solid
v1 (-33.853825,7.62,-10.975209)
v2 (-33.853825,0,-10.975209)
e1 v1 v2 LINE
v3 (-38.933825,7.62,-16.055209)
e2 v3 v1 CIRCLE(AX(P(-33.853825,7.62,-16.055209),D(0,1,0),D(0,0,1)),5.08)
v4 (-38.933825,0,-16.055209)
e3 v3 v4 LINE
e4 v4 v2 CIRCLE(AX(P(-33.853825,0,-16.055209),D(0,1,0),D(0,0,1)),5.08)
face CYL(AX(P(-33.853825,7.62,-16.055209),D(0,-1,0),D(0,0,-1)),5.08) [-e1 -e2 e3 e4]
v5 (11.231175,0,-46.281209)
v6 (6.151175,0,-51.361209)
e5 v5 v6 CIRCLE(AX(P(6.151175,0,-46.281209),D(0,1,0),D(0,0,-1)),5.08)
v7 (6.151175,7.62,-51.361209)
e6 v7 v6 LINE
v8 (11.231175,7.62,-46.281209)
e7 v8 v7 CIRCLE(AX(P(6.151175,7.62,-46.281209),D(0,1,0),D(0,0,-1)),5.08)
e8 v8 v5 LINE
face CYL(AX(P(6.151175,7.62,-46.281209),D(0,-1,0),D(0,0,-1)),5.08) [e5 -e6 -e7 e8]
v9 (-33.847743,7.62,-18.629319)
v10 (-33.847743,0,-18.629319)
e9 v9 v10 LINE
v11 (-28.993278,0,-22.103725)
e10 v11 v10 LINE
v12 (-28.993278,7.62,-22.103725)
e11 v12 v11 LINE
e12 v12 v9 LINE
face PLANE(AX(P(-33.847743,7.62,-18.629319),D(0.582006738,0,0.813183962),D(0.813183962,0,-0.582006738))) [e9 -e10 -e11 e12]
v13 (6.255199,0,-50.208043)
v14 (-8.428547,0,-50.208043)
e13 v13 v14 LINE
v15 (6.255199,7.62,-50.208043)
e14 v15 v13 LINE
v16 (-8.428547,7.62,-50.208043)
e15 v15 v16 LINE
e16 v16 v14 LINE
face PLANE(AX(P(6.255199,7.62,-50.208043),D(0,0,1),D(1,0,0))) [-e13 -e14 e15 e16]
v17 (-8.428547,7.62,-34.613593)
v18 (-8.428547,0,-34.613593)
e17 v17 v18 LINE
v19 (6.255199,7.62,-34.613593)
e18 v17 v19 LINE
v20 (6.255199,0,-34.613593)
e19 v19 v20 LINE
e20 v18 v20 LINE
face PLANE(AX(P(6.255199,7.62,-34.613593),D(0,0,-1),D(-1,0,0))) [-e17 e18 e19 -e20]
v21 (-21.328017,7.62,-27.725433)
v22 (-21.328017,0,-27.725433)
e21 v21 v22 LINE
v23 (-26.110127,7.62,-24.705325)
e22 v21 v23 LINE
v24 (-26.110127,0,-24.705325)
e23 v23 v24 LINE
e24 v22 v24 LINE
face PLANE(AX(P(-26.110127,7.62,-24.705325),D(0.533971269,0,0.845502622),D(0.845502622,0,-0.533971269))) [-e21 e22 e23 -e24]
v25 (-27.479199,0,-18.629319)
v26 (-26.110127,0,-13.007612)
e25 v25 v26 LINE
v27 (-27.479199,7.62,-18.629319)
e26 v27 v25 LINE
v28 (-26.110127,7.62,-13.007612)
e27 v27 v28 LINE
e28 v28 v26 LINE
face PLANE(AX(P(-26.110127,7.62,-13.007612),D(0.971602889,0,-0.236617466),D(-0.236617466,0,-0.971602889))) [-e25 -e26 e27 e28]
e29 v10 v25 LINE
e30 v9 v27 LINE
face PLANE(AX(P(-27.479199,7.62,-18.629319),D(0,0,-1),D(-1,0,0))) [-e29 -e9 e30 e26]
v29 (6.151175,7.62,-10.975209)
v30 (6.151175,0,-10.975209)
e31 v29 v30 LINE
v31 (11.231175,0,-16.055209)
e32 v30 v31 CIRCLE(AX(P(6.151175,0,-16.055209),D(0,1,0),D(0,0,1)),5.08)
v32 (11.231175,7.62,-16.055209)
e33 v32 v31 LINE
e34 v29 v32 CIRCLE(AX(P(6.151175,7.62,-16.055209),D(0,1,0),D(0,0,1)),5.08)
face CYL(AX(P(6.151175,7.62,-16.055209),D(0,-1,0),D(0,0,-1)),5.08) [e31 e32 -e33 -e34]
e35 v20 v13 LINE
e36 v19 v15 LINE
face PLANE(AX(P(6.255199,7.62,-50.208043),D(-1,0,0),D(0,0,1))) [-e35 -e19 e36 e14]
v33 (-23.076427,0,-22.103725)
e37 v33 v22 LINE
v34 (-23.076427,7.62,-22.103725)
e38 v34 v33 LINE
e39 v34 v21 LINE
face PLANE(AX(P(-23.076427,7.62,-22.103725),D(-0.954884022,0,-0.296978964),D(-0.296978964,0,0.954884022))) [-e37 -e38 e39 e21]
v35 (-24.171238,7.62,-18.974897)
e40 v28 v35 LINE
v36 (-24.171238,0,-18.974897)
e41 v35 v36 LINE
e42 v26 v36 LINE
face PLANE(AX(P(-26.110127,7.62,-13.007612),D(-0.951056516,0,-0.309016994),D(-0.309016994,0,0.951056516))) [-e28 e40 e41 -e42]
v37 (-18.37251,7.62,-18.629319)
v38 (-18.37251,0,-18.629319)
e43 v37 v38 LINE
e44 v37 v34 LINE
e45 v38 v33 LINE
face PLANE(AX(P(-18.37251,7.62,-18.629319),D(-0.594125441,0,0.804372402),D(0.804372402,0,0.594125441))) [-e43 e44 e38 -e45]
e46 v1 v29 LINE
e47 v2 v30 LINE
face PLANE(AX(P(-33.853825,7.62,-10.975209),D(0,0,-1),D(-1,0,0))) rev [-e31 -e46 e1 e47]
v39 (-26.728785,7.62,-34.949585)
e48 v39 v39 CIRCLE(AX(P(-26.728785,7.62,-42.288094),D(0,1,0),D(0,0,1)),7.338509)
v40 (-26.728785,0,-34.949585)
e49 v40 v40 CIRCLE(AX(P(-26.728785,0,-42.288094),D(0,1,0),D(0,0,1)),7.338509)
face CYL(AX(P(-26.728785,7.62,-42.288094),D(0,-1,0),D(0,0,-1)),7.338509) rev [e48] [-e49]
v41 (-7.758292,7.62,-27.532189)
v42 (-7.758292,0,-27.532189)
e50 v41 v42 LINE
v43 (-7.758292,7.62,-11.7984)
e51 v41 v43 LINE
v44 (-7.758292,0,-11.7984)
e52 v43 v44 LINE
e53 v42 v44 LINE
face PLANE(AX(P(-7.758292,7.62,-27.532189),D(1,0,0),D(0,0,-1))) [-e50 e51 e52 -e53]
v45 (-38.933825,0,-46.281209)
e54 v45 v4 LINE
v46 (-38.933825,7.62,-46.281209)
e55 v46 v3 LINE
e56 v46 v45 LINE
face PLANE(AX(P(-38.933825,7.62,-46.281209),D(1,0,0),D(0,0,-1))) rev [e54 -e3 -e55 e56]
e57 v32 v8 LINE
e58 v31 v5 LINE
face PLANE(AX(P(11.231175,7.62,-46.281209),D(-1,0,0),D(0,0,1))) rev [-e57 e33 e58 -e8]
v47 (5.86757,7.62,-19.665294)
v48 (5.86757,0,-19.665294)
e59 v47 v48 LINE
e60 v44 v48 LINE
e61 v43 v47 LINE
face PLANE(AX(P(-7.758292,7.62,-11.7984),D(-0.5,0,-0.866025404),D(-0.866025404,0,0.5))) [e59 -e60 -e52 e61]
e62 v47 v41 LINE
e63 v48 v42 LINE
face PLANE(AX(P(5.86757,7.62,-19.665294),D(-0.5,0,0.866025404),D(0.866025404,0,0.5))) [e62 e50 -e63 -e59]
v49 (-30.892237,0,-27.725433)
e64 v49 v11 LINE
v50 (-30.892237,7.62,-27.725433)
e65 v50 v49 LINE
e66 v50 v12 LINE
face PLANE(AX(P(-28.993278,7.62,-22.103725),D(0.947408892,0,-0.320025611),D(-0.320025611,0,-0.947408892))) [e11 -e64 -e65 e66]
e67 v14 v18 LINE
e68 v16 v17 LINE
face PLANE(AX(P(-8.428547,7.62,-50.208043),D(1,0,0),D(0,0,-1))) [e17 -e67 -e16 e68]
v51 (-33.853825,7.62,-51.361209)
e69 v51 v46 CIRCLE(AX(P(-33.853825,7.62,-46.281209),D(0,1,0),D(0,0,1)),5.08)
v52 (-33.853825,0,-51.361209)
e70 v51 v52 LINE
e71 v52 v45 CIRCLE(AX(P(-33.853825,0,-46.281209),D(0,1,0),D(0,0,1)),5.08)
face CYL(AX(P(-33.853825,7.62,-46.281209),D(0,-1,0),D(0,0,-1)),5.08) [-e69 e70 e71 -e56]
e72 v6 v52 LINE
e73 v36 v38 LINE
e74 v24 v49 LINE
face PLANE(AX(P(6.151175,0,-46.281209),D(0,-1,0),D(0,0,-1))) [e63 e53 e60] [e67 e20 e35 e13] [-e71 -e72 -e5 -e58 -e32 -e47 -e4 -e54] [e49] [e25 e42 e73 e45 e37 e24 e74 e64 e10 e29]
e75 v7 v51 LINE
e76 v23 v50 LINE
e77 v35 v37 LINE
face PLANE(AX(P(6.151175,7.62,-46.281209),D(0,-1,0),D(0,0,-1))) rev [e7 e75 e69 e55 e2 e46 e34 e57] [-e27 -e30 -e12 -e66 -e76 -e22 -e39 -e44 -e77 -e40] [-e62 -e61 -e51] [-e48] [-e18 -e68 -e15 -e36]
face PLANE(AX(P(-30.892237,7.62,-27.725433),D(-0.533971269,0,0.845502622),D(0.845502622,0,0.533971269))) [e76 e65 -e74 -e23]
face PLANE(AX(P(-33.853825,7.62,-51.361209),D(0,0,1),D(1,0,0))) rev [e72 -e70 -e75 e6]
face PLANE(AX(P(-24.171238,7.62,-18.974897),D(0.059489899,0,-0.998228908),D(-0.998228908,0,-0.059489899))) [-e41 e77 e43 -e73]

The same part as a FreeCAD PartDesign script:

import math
import FreeCAD as App
import Part
import Sketcher
from FreeCAD import Vector
Q = App.Units.Quantity


def add_polygon(sketch, points):
    """Adds a closed chain of lines whose ends are joined by coincident constraints."""
    first, n = sketch.GeometryCount, len(points)
    for a, b in zip(points, points[1:] + points[:1]):
        sketch.addGeometry(Part.LineSegment(App.Vector(*a, 0), App.Vector(*b, 0)), False)
    for i in range(n):
        sketch.addConstraint(Sketcher.Constraint("Coincident", first + i, 2, first + (i + 1) % n, 1))

doc = App.newDocument("Part")
body = doc.addObject("PartDesign::Body", "Body")

# Sketch on XZ plane
sketch1 = body.newObject("Sketcher::SketchObject", "Sketch")
sketch1.AttachmentSupport = (doc.getObject("XZ_Plane"), [""])
sketch1.MapMode = "FlatFace"
sketch1.addGeometry(Part.LineSegment(Vector(6.151175, -51.361209, 0), Vector(-33.853825, -51.361209, 0)), False)  # 0
sketch1.addGeometry(Part.ArcOfCircle(Part.Circle(Vector(-33.853825, -46.281209, 0), Vector(0, 0, 1), 5.08), math.radians(180), math.radians(270)), False)  # 1
sketch1.addGeometry(Part.LineSegment(Vector(-38.933825, -46.281209, 0), Vector(-38.933825, -16.055209, 0)), False)  # 2
sketch1.addGeometry(Part.ArcOfCircle(Part.Circle(Vector(-33.853825, -16.055209, 0), Vector(0, 0, 1), 5.08), math.radians(90), math.radians(180)), False)  # 3
sketch1.addGeometry(Part.LineSegment(Vector(-33.853825, -10.975209, 0), Vector(6.151175, -10.975209, 0)), False)  # 4
sketch1.addGeometry(Part.ArcOfCircle(Part.Circle(Vector(6.151175, -16.055209, 0), Vector(0, 0, 1), 5.08), math.radians(0), math.radians(90)), False)  # 5
sketch1.addGeometry(Part.LineSegment(Vector(11.231175, -16.055209, 0), Vector(11.231175, -46.281209, 0)), False)  # 6
sketch1.addGeometry(Part.ArcOfCircle(Part.Circle(Vector(6.151175, -46.281209, 0), Vector(0, 0, 1), 5.08), math.radians(-90), math.radians(0)), False)  # 7
add_polygon(sketch1, [(5.86757, -19.665294), (-7.758292, -11.7984), (-7.758292, -27.532189)])  # lines 8-10
add_polygon(sketch1, [(-26.110127, -13.007612), (-27.479199, -18.629319), (-33.847743, -18.629319), (-28.993278, -22.103725), (-30.892237, -27.725433), (-26.110127, -24.705325), (-21.328017, -27.725433), (-23.076427, -22.103725), (-18.37251, -18.629319), (-24.171238, -18.974897)])  # lines 11-20
add_polygon(sketch1, [(-8.428547, -34.613593), (-8.428547, -50.208043), (6.255199, -50.208043), (6.255199, -34.613593)])  # lines 21-24
sketch1.addGeometry(Part.Circle(Vector(-26.728785, -42.288094, 0), Vector(0, 0, 1), 7.338509), False)  # 25
sketch1.addConstraint([
    Sketcher.Constraint("Tangent", 0, 2, 1, 2),
    Sketcher.Constraint("Tangent", 1, 1, 2, 1),
    Sketcher.Constraint("Tangent", 2, 2, 3, 2),
    Sketcher.Constraint("Tangent", 3, 1, 4, 1),
    Sketcher.Constraint("Tangent", 4, 2, 5, 2),
    Sketcher.Constraint("Tangent", 5, 1, 6, 1),
    Sketcher.Constraint("Tangent", 6, 2, 7, 2),
    Sketcher.Constraint("Tangent", 7, 1, 0, 1),
    Sketcher.Constraint("Horizontal", 0),
    Sketcher.Constraint("Vertical", 2),
    Sketcher.Constraint("Horizontal", 4),
    Sketcher.Constraint("Vertical", 6),
    Sketcher.Constraint("Vertical", 9),
    Sketcher.Constraint("Horizontal", 12),
    Sketcher.Constraint("Vertical", 21),
    Sketcher.Constraint("Horizontal", 22),
    Sketcher.Constraint("Vertical", 23),
    Sketcher.Constraint("Horizontal", 24),
    Sketcher.Constraint("Equal", 1, 3),
    Sketcher.Constraint("Equal", 3, 5),
    Sketcher.Constraint("Equal", 5, 7),
    Sketcher.Constraint("Horizontal", 14, 2, 16, 2),
    Sketcher.Constraint("Horizontal", 13, 2, 17, 2),
    Sketcher.Constraint("Horizontal", 12, 2, 18, 2),
    Sketcher.Constraint("Vertical", 15, 2, 20, 2),
    Sketcher.Constraint("Equal", 8, 10),
    Sketcher.Constraint("Equal", 15, 16),
    Sketcher.Constraint("Radius", 1, Q("0.2 in")),
    Sketcher.Constraint("Angle", 8, Q("150 deg")),
    Sketcher.Constraint("Angle", 20, Q("108 deg")),
    Sketcher.Constraint("DistanceY", 2, 1, 2, 2, Q("1.19 in")),
    Sketcher.Constraint("DistanceX", 0, 2, 0, 1, Q("1.575 in")),
    Sketcher.Constraint("Diameter", 25, 14.677018),
    Sketcher.Constraint("Distance", 13, 5.969701),
    Sketcher.Constraint("DistanceY", 9, 2, 9, 1, 15.73379),
    Sketcher.Constraint("DistanceY", 21, 2, 21, 1, 15.594449),
    Sketcher.Constraint("DistanceY", 8, 2, -1, 1, 11.7984),
    Sketcher.Constraint("DistanceX", 11, 2, -1, 1, 27.479199),
    Sketcher.Constraint("DistanceX", -1, 1, 22, 2, 6.255199),
    Sketcher.Constraint("DistanceY", 15, 2, 13, 2, 2.601599),
    Sketcher.Constraint("DistanceX", 15, 2, 17, 2, 3.0337),
    Sketcher.Constraint("DistanceY", 23, 2, 10, 2, 14.948299),
    Sketcher.Constraint("Distance", 14, 5.933771),
    Sketcher.Constraint("Distance", 17, 5.88732),
    Sketcher.Constraint("DistanceX", 12, 2, 12, 1, 6.368545),
    Sketcher.Constraint("DistanceX", 22, 1, 22, 2, 14.683746),
    Sketcher.Constraint("DistanceY", 1, 3, -1, 1, 46.281209),
    Sketcher.Constraint("DistanceX", 8, 2, -1, 1, 7.758292),
    Sketcher.Constraint("DistanceY", 11, 2, -1, 1, 18.629319),
    Sketcher.Constraint("DistanceX", 18, 2, -1, 1, 18.37251),
    Sketcher.Constraint("DistanceX", 19, 2, -1, 1, 24.171238),
    Sketcher.Constraint("DistanceY", 20, 2, -1, 1, 13.007612),
    Sketcher.Constraint("DistanceX", 1, 3, 25, 3, 7.12504),
    Sketcher.Constraint("DistanceX", 3, 3, 12, 2, 0.006081),
    Sketcher.Constraint("DistanceX", 13, 2, 11, 2, 1.514079),
    Sketcher.Constraint("DistanceX", 14, 2, 13, 2, 1.898959),
    Sketcher.Constraint("DistanceY", 21, 2, 25, 3, 7.919949),
])
pad1 = body.newObject("PartDesign::Pad", "Pad")
pad1.Profile = sketch1
pad1.Length = Q("0.3 in")
pad1.Reversed = True

doc.recompute()
